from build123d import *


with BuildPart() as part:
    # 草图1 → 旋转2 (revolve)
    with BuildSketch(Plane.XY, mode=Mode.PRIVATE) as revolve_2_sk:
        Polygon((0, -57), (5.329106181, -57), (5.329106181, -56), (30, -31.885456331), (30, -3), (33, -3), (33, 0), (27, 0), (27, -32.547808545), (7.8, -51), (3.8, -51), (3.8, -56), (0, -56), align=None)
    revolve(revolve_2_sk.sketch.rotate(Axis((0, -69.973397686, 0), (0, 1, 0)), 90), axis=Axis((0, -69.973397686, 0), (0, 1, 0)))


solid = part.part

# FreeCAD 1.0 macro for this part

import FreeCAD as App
import Part
import Sketcher

V = App.Vector
Q = App.Units.Quantity


def add_polygon(sketch, points):
    """Adds a closed chain of lines whose ends are joined by coincident constraints."""
    first, n = sketch.GeometryCount, len(points)
    for a, b in zip(points, points[1:] + points[:1]):
        sketch.addGeometry(Part.LineSegment(App.Vector(*a, 0), App.Vector(*b, 0)), False)
    for i in range(n):
        sketch.addConstraint(Sketcher.Constraint("Coincident", first + i, 2, first + (i + 1) % n, 1))

doc = App.newDocument("Part")
body = doc.addObject("PartDesign::Body", "Body")

# Sketch on XY plane
sketch1 = body.newObject("Sketcher::SketchObject", "Sketch")
sketch1.AttachmentSupport = (doc.getObject("XY_Plane"), [""])
sketch1.MapMode = "FlatFace"
add_polygon(sketch1, [(0, -57), (5.329106, -57), (5.329106, -56), (30, -31.885456), (30, -3), (33, -3), (33, 0), (27, 0), (27, -32.547809), (7.8, -51), (3.8, -51), (3.8, -56), (0, -56)])  # lines 0-12
sketch1.addConstraint([
    Sketcher.Constraint("Horizontal", 0),
    Sketcher.Constraint("Vertical", 1),
    Sketcher.Constraint("Vertical", 3),
    Sketcher.Constraint("Horizontal", 4),
    Sketcher.Constraint("Vertical", 5),
    Sketcher.Constraint("Horizontal", 6),
    Sketcher.Constraint("Vertical", 7),
    Sketcher.Constraint("Horizontal", 9),
    Sketcher.Constraint("Vertical", 10),
    Sketcher.Constraint("Horizontal", 11),
    Sketcher.Constraint("Vertical", 12),
    Sketcher.Constraint("PointOnObject", 5, 2, -1),
    Sketcher.Constraint("PointOnObject", 11, 2, -2),
    Sketcher.Constraint("Horizontal", 1, 2, 10, 2),
    Sketcher.Constraint("Equal", 4, 5),
    Sketcher.Constraint("DistanceX", 4, 1, 4, 2, Q("3 mm")),
    Sketcher.Constraint("DistanceX", 6, 2, 6, 1, Q("6 mm")),
    Sketcher.Constraint("DistanceX", 9, 2, 9, 1, Q("4 mm")),
    Sketcher.Constraint("DistanceY", 1, 1, 1, 2, Q("1 mm")),
    Sketcher.Constraint("DistanceY", 10, 2, 10, 1, Q("5 mm")),
    Sketcher.Constraint("DistanceX", 11, 2, 11, 1, Q("3.8 mm")),
    Sketcher.Constraint("DistanceY", 0, 2, -1, 1, Q("57 mm")),
    Sketcher.Constraint("DistanceX", -1, 1, 2, 2, Q("30 mm")),
    Sketcher.Constraint("DistanceY", 7, 2, 7, 1, Q("32.547809 mm")),
    Sketcher.Constraint("DistanceX", 0, 1, 0, 2, Q("5.329106 mm")),
    Sketcher.Constraint("DistanceY", 3, 1, 3, 2, Q("28.885456 mm")),
])
revolution = body.newObject("PartDesign::Revolution", "Revolution")
revolution.Profile = sketch1
revolution.ReferenceAxis = (sketch1, ["V_Axis"])
revolution.Angle = 360

doc.recompute()
